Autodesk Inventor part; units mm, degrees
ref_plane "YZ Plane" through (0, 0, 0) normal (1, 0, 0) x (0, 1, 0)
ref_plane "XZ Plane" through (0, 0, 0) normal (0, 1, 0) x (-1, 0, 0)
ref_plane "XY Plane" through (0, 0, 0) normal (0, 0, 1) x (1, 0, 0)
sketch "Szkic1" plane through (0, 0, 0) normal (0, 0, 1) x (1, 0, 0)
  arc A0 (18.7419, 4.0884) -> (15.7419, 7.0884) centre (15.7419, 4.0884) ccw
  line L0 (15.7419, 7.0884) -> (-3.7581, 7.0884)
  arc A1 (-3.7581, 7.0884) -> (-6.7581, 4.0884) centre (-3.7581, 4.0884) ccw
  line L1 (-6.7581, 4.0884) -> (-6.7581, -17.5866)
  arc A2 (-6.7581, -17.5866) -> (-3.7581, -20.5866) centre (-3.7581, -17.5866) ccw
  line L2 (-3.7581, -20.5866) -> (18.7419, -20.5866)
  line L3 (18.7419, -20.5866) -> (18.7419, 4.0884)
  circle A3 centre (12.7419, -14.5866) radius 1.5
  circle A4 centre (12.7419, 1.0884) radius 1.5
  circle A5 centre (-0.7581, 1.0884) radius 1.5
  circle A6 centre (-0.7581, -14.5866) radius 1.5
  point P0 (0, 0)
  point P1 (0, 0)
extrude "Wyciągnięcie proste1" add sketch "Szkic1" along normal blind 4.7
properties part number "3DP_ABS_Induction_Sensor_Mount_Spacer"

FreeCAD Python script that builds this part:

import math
import FreeCAD as App
import Part
import Sketcher

V = App.Vector
Q = App.Units.Quantity

doc = App.newDocument("Part")
params = doc.addObject("Spreadsheet::Sheet", "Params")
for row, (alias, value) in enumerate([
    ("sketch1_diameter", "3 mm"),
    ("sketch1_radius", "3 mm"),
    ("sketch1_width", "19.5 mm"),
    ("pad1_length", "4.7 mm"),
], start=1):
    params.set(f"A{row}", alias)
    params.set(f"B{row}", "=" + value)
    params.setAlias(f"B{row}", alias)

body = doc.addObject("PartDesign::Body", "Body")

sketch1 = doc.addObject("Sketcher::SketchObject", "Sketch")
body.addObject(sketch1)
sketch1.AttachmentSupport = (doc.XY_Plane, [""])
sketch1.MapMode = "FlatFace"
sketch1.addGeometry(Part.LineSegment(V(18.7, -20.6, 0), V(18.7, 4.1, 0)), False)
sketch1.addGeometry(Part.ArcOfCircle(Part.Circle(V(15.7, 4.1, 0), V(0, 0, 1), 3), math.radians(0), math.radians(90)), False)
sketch1.addGeometry(Part.LineSegment(V(15.7, 7.1, 0), V(-3.8, 7.1, 0)), False)
sketch1.addGeometry(Part.ArcOfCircle(Part.Circle(V(-3.8, 4.1, 0), V(0, 0, 1), 3), math.radians(90), math.radians(180)), False)
sketch1.addGeometry(Part.LineSegment(V(-6.8, 4.1, 0), V(-6.8, -17.6, 0)), False)
sketch1.addGeometry(Part.ArcOfCircle(Part.Circle(V(-3.8, -17.6, 0), V(0, 0, 1), 3), math.radians(180), math.radians(270)), False)
sketch1.addGeometry(Part.LineSegment(V(-3.8, -20.6, 0), V(18.7, -20.6, 0)), False)
sketch1.addGeometry(Part.Circle(V(-0.8, -14.6, 0), V(0, 0, 1), 1.5), False)
sketch1.addGeometry(Part.Circle(V(12.7, -14.6, 0), V(0, 0, 1), 1.5), False)
sketch1.addGeometry(Part.Circle(V(-0.8, 1.1, 0), V(0, 0, 1), 1.5), False)
sketch1.addGeometry(Part.Circle(V(12.7, 1.1, 0), V(0, 0, 1), 1.5), False)
sketch1.addConstraint(Sketcher.Constraint("Tangent", 0, 2, 1, 1))
sketch1.addConstraint(Sketcher.Constraint("Tangent", 1, 2, 2, 1))
sketch1.addConstraint(Sketcher.Constraint("Tangent", 2, 2, 3, 1))
sketch1.addConstraint(Sketcher.Constraint("Tangent", 3, 2, 4, 1))
sketch1.addConstraint(Sketcher.Constraint("Tangent", 4, 2, 5, 1))
sketch1.addConstraint(Sketcher.Constraint("Tangent", 5, 2, 6, 1))
sketch1.addConstraint(Sketcher.Constraint("Coincident", 6, 2, 0, 1))
sketch1.addConstraint(Sketcher.Constraint("Vertical", 0))
sketch1.addConstraint(Sketcher.Constraint("Horizontal", 2))
sketch1.addConstraint(Sketcher.Constraint("Vertical", 4))
sketch1.addConstraint(Sketcher.Constraint("Horizontal", 6))
sketch1.addConstraint(Sketcher.Constraint("Equal", 1, 3))
sketch1.addConstraint(Sketcher.Constraint("Equal", 3, 5))
sketch1.addConstraint(Sketcher.Constraint("Equal", 7, 8))
sketch1.addConstraint(Sketcher.Constraint("Equal", 8, 9))
sketch1.addConstraint(Sketcher.Constraint("Equal", 9, 10))
sketch1.addConstraint(Sketcher.Constraint("Horizontal", 7, 3, 8, 3))
sketch1.addConstraint(Sketcher.Constraint("Horizontal", 9, 3, 10, 3))
sketch1.addConstraint(Sketcher.Constraint("Vertical", 7, 3, 9, 3))
sketch1.addConstraint(Sketcher.Constraint("Vertical", 8, 3, 10, 3))
sketch1.addConstraint(Sketcher.Constraint("Diameter", 7, Q("3 mm")))
sketch1.addConstraint(Sketcher.Constraint("Radius", 1, Q("3 mm")))
sketch1.addConstraint(Sketcher.Constraint("DistanceX", 2, 2, 2, 1, Q("19.5 mm")))
sketch1.addConstraint(Sketcher.Constraint("DistanceX", 5, 3, 7, 3, Q("3 mm")))
sketch1.addConstraint(Sketcher.Constraint("DistanceY", 5, 3, 7, 3, Q("3 mm")))
sketch1.addConstraint(Sketcher.Constraint("DistanceX", 8, 3, 1, 3, Q("3 mm")))
sketch1.addConstraint(Sketcher.Constraint("DistanceY", 9, 3, 3, 3, Q("3 mm")))
sketch1.addConstraint(Sketcher.Constraint("DistanceY", 0, 1, 0, 2, Q("24.675 mm")))
sketch1.addConstraint(Sketcher.Constraint("DistanceX", -1, 1, 1, 3, Q("15.742 mm")))
sketch1.addConstraint(Sketcher.Constraint("DistanceY", -1, 1, 1, 3, Q("4.0884 mm")))
sketch1.setExpression("Constraints[20]", "Params.sketch1_diameter")
sketch1.setExpression("Constraints[21]", "Params.sketch1_radius")
sketch1.setExpression("Constraints[22]", "Params.sketch1_width")
pad1 = doc.addObject("PartDesign::Pad", "Pad")
body.addObject(pad1)
pad1.Profile = sketch1
pad1.setExpression("Length", "Params.pad1_length")

doc.recompute()
